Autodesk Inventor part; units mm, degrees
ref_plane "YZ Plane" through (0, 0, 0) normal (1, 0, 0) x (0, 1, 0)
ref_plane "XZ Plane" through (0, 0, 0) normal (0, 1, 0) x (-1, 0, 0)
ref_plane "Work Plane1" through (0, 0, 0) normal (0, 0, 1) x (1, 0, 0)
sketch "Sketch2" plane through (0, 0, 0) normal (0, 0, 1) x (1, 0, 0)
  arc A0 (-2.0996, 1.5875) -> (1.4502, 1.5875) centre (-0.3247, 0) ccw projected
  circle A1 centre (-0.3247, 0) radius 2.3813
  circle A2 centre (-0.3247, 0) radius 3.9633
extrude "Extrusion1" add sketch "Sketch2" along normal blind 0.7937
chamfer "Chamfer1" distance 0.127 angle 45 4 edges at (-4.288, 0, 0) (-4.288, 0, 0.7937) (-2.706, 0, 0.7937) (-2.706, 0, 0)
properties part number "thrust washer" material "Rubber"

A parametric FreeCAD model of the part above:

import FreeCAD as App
import Part
import Sketcher
Q = App.Units.Quantity


def edges_at(feature, points):
    """Names of the edges that pass closest to the given points."""
    edges = feature.Shape.Edges
    near = lambda p: min(range(len(edges)), key=lambda i: edges[i].distToShape(Part.Vertex(*p))[0])
    return sorted({f"Edge{near(p) + 1}" for p in points})

doc = App.newDocument("Part")
body = doc.addObject("PartDesign::Body", "Body")

# Sketch on XY plane
sketch1 = body.newObject("Sketcher::SketchObject", "Sketch")
sketch1.AttachmentSupport = (doc.getObject("XY_Plane"), [""])
sketch1.MapMode = "FlatFace"
sketch1.addGeometry(Part.Circle(App.Vector(-0.3, 0, 0), App.Vector(0, 0, 1), 4), False)
sketch1.addGeometry(Part.Circle(App.Vector(-0.3, 0, 0), App.Vector(0, 0, 1), 2.4), False)
sketch1.addConstraint(Sketcher.Constraint("Coincident", 1, 3, 0, 3))
sketch1.addConstraint(Sketcher.Constraint("PointOnObject", 0, 3, -1))
sketch1.addConstraint(Sketcher.Constraint("Diameter", 1, Q("0.1875 in")))
sketch1.addConstraint(Sketcher.Constraint("Diameter", 0, Q("7.9266 mm")))
sketch1.addConstraint(Sketcher.Constraint("DistanceX", 0, 3, -1, 1, Q("0.3247 mm")))
pad1 = body.newObject("PartDesign::Pad", "Pad")
pad1.Profile = sketch1
pad1.Length = Q("0.031248 in")
doc.recompute()

chamfer = body.newObject("PartDesign::Chamfer", "Chamfer")
chamfer.Base = (pad1, edges_at(pad1, [
    (-4.288, 0, 0),
    (-4.288, 0, 0.794),
    (-2.706, 0, 0.794),
    (-2.706, 0, 0),
]))
chamfer.Size = Q("0.005 in")

doc.recompute()
